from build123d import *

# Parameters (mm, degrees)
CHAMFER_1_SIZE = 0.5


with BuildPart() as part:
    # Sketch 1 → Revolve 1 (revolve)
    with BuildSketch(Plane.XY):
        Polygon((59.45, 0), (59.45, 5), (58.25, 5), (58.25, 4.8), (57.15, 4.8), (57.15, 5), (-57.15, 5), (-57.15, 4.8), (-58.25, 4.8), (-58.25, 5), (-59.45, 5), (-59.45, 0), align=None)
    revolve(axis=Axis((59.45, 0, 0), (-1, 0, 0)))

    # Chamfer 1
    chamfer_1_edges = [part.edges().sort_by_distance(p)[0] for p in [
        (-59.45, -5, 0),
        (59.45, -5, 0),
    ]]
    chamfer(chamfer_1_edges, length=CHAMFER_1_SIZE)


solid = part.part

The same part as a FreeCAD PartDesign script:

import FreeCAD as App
import Part
import Sketcher
from FreeCAD import Vector


def edges_at(feature, points):
    """Names of the edges that pass closest to the given points."""
    edges = feature.Shape.Edges
    near = lambda p: min(range(len(edges)), key=lambda i: edges[i].distToShape(Part.Vertex(*p))[0])
    return sorted({f"Edge{near(p) + 1}" for p in points})


def add_polygon(sketch, points):
    """Adds a closed chain of lines whose ends are joined by coincident constraints."""
    first, n = sketch.GeometryCount, len(points)
    for a, b in zip(points, points[1:] + points[:1]):
        sketch.addGeometry(Part.LineSegment(App.Vector(*a, 0), App.Vector(*b, 0)), False)
    for i in range(n):
        sketch.addConstraint(Sketcher.Constraint("Coincident", first + i, 2, first + (i + 1) % n, 1))

doc = App.newDocument("Part")
params = doc.addObject("Spreadsheet::Sheet", "Params")
for row, (alias, value) in enumerate([
    ("sketch1_height", "5 mm"),
    ("sketch1_width", "1.2 mm"),
    ("sketch1_width2", "1.1 mm"),
    ("sketch1_width3", "114.3 mm"),
    ("sketch1_height2", "0.2 mm"),
    ("revolution_angle", "360 deg"),
    ("chamfer_size", "0.5 mm"),
], start=1):
    params.set(f"A{row}", alias)
    params.set(f"B{row}", "=" + value)
    params.setAlias(f"B{row}", alias)

body = doc.addObject("PartDesign::Body", "Body")

sketch1 = doc.addObject("Sketcher::SketchObject", "Sketch")
body.addObject(sketch1)
sketch1.AttachmentSupport = (doc.XY_Plane, [""])
sketch1.MapMode = "FlatFace"
add_polygon(sketch1, [(59.45, 0), (59.45, 5), (58.25, 5), (58.25, 4.8), (57.15, 4.8), (57.15, 5), (-57.15, 5), (-57.15, 4.8), (-58.25, 4.8), (-58.25, 5), (-59.45, 5), (-59.45, 0)])
sketch1.addConstraint([
    Sketcher.Constraint("Vertical", 0),
    Sketcher.Constraint("Horizontal", 1),
    Sketcher.Constraint("Vertical", 2),
    Sketcher.Constraint("Horizontal", 3),
    Sketcher.Constraint("Vertical", 4),
    Sketcher.Constraint("Horizontal", 5),
    Sketcher.Constraint("Vertical", 6),
    Sketcher.Constraint("Horizontal", 7),
    Sketcher.Constraint("Vertical", 8),
    Sketcher.Constraint("Horizontal", 9),
    Sketcher.Constraint("Vertical", 10),
    Sketcher.Constraint("Horizontal", 11),
    Sketcher.Constraint("Symmetric", 10, 2, 11, 2, -1, 1),
    Sketcher.Constraint("Symmetric", 3, 2, 6, 2, -2),
    Sketcher.Constraint("Symmetric", 1, 2, 8, 2, -2),
    Sketcher.Constraint("Horizontal", 1, 2, 4, 2),
    Sketcher.Constraint("DistanceY", 0, 1, 0, 2, 5.0),
    Sketcher.Constraint("DistanceX", 1, 2, 1, 1, 1.2),
    Sketcher.Constraint("DistanceX", 3, 2, 3, 1, 1.1),
    Sketcher.Constraint("DistanceX", 5, 2, 5, 1, 114.3),
    Sketcher.Constraint("DistanceY", 2, 2, 2, 1, 0.2),
])
sketch1.setExpression("Constraints[28]", "Params.sketch1_height")
sketch1.setExpression("Constraints[29]", "Params.sketch1_width")
sketch1.setExpression("Constraints[30]", "Params.sketch1_width2")
sketch1.setExpression("Constraints[31]", "Params.sketch1_width3")
sketch1.setExpression("Constraints[32]", "Params.sketch1_height2")
revolution = doc.addObject("PartDesign::Revolution", "Revolution")
body.addObject(revolution)
revolution.Profile = sketch1
revolution.ReferenceAxis = (sketch1, ["H_Axis"])
revolution.setExpression("Angle", "Params.revolution_angle")
doc.recompute()

chamfer = doc.addObject("PartDesign::Chamfer", "Chamfer")
body.addObject(chamfer)
chamfer.Base = (revolution, edges_at(revolution, [(-59.45, -5, 0), (59.45, -5, 0)]))
chamfer.setExpression("Size", "Params.chamfer_size")

doc.recompute()
